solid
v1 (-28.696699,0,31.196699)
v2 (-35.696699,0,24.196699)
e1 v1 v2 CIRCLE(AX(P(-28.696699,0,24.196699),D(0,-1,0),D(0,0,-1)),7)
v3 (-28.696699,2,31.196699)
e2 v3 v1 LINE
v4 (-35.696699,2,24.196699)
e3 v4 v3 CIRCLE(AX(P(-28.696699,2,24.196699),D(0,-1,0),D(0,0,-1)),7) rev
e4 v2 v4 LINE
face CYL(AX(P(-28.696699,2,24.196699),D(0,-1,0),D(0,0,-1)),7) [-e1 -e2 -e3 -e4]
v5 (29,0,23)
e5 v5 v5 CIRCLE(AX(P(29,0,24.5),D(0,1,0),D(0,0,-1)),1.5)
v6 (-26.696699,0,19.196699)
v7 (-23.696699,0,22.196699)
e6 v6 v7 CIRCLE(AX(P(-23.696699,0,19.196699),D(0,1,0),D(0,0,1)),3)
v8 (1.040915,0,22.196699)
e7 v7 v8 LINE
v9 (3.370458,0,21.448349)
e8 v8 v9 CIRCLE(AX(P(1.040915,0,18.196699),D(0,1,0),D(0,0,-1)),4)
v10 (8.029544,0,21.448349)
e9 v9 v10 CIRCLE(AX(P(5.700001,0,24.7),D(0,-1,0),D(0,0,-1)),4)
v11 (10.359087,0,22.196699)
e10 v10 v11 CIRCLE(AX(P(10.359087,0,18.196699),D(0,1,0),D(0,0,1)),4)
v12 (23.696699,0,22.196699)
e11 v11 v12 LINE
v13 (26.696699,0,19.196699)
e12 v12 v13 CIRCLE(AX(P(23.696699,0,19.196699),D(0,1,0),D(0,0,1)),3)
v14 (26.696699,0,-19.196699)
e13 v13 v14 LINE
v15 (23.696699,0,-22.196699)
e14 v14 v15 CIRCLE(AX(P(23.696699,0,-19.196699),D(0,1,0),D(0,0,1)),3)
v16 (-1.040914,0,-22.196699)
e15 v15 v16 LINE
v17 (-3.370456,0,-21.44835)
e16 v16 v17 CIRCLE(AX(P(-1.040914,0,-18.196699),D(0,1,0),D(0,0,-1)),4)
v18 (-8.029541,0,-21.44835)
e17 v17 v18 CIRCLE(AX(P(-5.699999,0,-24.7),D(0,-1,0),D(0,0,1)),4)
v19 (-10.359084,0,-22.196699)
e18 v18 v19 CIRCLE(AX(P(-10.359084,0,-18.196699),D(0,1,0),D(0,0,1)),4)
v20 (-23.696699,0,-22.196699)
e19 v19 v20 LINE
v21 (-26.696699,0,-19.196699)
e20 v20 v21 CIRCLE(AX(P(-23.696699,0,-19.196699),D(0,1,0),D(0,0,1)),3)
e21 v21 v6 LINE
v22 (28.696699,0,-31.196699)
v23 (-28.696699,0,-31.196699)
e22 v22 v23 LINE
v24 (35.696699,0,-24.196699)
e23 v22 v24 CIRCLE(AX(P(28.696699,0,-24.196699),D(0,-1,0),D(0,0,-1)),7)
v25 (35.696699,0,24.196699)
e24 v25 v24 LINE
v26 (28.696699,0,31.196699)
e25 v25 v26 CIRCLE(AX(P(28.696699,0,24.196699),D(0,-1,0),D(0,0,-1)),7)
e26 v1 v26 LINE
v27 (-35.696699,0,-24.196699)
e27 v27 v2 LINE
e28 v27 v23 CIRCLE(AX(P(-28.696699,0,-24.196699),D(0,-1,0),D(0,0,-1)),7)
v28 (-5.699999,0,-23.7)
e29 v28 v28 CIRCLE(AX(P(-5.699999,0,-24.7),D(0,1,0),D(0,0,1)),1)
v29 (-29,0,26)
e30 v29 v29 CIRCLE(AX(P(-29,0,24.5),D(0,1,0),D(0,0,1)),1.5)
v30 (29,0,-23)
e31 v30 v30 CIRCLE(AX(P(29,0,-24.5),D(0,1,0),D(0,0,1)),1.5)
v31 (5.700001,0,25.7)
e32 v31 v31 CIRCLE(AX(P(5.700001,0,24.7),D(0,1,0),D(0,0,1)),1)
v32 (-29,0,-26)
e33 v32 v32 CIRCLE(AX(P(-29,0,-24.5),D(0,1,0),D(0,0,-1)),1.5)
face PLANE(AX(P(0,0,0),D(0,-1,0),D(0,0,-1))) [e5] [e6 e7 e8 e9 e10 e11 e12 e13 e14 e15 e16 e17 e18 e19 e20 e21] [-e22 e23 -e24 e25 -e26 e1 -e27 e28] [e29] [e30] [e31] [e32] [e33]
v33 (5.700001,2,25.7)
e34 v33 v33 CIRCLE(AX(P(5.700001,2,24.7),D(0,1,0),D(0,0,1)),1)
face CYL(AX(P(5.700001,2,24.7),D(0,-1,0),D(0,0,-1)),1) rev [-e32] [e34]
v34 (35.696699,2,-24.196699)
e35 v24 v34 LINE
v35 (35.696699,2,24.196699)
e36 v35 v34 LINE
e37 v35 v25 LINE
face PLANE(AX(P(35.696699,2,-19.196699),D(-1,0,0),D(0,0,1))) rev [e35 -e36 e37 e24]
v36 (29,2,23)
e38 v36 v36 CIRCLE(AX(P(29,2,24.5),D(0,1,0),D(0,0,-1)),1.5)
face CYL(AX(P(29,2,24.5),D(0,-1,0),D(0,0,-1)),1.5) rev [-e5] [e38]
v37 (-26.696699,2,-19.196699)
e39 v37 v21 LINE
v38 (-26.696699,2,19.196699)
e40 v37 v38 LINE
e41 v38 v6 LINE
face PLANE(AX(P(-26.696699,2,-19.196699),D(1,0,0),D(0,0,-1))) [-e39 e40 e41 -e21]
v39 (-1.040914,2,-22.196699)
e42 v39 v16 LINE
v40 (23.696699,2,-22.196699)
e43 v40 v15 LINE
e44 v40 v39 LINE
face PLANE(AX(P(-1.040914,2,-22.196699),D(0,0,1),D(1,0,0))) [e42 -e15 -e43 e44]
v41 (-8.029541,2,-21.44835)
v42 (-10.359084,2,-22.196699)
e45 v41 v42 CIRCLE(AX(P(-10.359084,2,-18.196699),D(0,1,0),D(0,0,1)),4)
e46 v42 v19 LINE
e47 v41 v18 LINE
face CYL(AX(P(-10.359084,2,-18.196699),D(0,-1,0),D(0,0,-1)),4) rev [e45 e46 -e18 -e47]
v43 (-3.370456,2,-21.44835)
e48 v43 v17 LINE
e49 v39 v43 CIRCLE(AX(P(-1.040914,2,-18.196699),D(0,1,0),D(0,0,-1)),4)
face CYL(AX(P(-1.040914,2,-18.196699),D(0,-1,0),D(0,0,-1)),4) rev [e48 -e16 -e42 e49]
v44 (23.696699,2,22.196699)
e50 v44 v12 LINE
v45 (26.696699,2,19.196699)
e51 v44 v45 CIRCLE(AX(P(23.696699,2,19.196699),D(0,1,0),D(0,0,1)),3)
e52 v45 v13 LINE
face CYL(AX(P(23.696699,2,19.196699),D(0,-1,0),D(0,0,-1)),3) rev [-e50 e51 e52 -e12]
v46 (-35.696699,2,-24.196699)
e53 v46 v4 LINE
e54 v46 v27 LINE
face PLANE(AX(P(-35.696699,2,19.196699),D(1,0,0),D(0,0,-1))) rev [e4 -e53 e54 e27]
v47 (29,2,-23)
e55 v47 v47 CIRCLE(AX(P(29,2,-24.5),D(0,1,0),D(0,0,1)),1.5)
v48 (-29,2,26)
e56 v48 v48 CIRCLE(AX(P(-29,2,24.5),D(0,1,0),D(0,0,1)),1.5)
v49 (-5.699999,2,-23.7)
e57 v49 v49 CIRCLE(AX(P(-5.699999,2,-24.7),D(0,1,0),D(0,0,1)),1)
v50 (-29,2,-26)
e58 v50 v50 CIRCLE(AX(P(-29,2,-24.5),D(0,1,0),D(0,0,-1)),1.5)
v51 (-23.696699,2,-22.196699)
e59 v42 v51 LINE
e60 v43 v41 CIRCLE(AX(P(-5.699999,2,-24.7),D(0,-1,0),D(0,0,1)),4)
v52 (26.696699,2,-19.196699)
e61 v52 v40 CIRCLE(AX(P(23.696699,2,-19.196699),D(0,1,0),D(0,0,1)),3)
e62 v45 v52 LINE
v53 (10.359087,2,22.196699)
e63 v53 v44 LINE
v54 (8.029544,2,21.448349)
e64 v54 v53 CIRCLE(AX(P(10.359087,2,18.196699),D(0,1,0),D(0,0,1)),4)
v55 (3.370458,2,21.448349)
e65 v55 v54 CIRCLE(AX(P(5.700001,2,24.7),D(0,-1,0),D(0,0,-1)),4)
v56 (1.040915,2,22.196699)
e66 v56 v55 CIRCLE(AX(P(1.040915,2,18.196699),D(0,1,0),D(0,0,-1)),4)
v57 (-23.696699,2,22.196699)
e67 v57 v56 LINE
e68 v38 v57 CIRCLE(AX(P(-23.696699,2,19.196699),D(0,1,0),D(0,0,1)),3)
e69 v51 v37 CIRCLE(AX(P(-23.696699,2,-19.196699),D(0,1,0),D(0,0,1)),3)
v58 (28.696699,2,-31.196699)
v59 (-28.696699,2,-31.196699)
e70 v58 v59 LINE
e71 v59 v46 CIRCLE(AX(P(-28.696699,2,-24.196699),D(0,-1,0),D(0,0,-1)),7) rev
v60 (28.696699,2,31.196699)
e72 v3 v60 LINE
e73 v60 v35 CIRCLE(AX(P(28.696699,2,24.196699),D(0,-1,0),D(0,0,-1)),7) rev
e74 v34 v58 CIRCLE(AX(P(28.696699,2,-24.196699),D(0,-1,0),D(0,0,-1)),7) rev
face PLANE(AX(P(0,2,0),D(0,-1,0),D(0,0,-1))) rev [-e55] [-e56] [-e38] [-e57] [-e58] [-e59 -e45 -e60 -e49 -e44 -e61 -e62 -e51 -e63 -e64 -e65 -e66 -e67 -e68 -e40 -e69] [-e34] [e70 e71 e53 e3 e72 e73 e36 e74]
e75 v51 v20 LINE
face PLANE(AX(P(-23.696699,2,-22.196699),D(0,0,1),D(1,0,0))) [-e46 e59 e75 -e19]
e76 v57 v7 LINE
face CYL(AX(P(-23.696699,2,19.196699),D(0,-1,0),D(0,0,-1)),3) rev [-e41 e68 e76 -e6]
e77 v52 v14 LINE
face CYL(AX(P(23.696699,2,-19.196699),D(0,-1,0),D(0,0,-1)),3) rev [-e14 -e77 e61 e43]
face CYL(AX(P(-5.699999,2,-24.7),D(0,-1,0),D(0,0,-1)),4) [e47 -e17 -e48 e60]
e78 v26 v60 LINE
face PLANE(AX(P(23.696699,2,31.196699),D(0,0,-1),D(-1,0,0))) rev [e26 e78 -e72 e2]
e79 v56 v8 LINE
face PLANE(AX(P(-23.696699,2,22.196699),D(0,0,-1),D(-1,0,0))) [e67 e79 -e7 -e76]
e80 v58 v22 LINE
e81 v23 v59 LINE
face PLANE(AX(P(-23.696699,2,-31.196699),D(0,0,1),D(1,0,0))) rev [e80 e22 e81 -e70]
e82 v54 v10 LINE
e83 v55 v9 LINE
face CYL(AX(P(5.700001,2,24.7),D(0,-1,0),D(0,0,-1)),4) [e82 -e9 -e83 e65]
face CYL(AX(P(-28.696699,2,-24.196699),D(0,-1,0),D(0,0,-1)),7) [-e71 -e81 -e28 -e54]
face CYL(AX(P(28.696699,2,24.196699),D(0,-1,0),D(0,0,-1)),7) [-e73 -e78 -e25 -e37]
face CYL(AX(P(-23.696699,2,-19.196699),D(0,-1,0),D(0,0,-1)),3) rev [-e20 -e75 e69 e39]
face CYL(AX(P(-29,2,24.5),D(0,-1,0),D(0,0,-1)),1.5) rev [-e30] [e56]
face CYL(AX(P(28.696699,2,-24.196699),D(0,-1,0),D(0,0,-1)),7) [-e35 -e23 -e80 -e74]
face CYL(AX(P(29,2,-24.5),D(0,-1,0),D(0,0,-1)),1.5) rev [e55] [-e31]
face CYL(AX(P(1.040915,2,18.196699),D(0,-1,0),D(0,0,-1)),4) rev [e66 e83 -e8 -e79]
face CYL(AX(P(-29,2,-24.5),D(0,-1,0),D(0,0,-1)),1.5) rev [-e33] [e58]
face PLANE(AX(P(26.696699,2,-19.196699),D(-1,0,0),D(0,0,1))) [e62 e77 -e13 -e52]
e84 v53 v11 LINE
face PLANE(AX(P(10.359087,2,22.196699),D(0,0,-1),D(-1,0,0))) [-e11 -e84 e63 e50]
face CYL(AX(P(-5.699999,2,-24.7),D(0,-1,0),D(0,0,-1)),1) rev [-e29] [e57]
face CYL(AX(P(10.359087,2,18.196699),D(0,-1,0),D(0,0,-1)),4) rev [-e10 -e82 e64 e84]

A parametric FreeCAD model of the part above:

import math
import FreeCAD as App
import Part
import Sketcher

V = App.Vector
Q = App.Units.Quantity


def edges_at(feature, points):
    """Names of the edges that pass closest to the given points."""
    edges = feature.Shape.Edges
    near = lambda p: min(range(len(edges)), key=lambda i: edges[i].distToShape(Part.Vertex(*p))[0])
    return sorted({f"Edge{near(p) + 1}" for p in points})

doc = App.newDocument("Part")
body = doc.addObject("PartDesign::Body", "Body")

# Sketch on XZ plane
sketch1 = body.newObject("Sketcher::SketchObject", "Sketch")
sketch1.AttachmentSupport = (doc.getObject("XZ_Plane"), [""])
sketch1.MapMode = "FlatFace"
sketch1.addGeometry([
    Part.LineSegment(V(35.7, -31.2, 0), V(-35.7, -31.2, 0)),  # 0
    Part.LineSegment(V(-35.7, -31.2, 0), V(-35.7, 31.2, 0)),  # 1
    Part.LineSegment(V(-35.7, 31.2, 0), V(35.7, 31.2, 0)),  # 2
    Part.LineSegment(V(35.7, 31.2, 0), V(35.7, -31.2, 0)),  # 3
    Part.Circle(V(-29, -24.5, 0), V(0, 0, 1), 1.5),  # 4
    Part.Circle(V(-5.7, -24.7, 0), V(0, 0, 1), 1),  # 5
    Part.Circle(V(29, -24.5, 0), V(0, 0, 1), 1.5),  # 6
    Part.Circle(V(-29, 24.5, 0), V(0, 0, 1), 1.5),  # 7
    Part.LineSegment(V(-23.7, -22.2, 0), V(-10.4, -22.2, 0)),  # 8
    Part.ArcOfCircle(Part.Circle(V(-10.4, -18.2, 0), V(0, 0, 1), 4), math.radians(-90), math.radians(-54)),  # 9
    Part.ArcOfCircle(Part.Circle(V(-5.7, -24.7, 0), V(0, 0, 1), 4), math.radians(54), math.radians(126)),  # 10
    Part.ArcOfCircle(Part.Circle(V(-1, -18.2, 0), V(0, 0, 1), 4), math.radians(-126), math.radians(-90)),  # 11
    Part.LineSegment(V(-1, -22.2, 0), V(23.7, -22.2, 0)),  # 12
    Part.ArcOfCircle(Part.Circle(V(23.7, -19.2, 0), V(0, 0, 1), 3), math.radians(-90), math.radians(0)),  # 13
    Part.LineSegment(V(26.7, -19.2, 0), V(26.7, 19.2, 0)),  # 14
    Part.ArcOfCircle(Part.Circle(V(23.7, 19.2, 0), V(0, 0, 1), 3), math.radians(0), math.radians(90)),  # 15
    Part.LineSegment(V(23.7, 22.2, 0), V(10.4, 22.2, 0)),  # 16
    Part.ArcOfCircle(Part.Circle(V(10.4, 18.2, 0), V(0, 0, 1), 4), math.radians(90), math.radians(126)),  # 17
    Part.ArcOfCircle(Part.Circle(V(5.7, 24.7, 0), V(0, 0, 1), 4), math.radians(-126), math.radians(-54)),  # 18
    Part.ArcOfCircle(Part.Circle(V(1, 18.2, 0), V(0, 0, 1), 4), math.radians(54), math.radians(90)),  # 19
    Part.LineSegment(V(1, 22.2, 0), V(-23.7, 22.2, 0)),  # 20
    Part.ArcOfCircle(Part.Circle(V(-23.7, 19.2, 0), V(0, 0, 1), 3), math.radians(90), math.radians(180)),  # 21
    Part.LineSegment(V(-26.7, 19.2, 0), V(-26.7, -19.2, 0)),  # 22
    Part.ArcOfCircle(Part.Circle(V(-23.7, -19.2, 0), V(0, 0, 1), 3), math.radians(180), math.radians(270)),  # 23
    Part.Circle(V(5.7, 24.7, 0), V(0, 0, 1), 1),  # 24
    Part.Circle(V(29, 24.5, 0), V(0, 0, 1), 1.5),  # 25
], False)
sketch1.addConstraint([
    Sketcher.Constraint("Coincident", 0, 2, 1, 1),
    Sketcher.Constraint("Coincident", 1, 2, 2, 1),
    Sketcher.Constraint("Coincident", 2, 2, 3, 1),
    Sketcher.Constraint("Coincident", 3, 2, 0, 1),
    Sketcher.Constraint("Tangent", 8, 2, 9, 1),
    Sketcher.Constraint("Tangent", 9, 2, 10, 2),
    Sketcher.Constraint("Tangent", 10, 1, 11, 1),
    Sketcher.Constraint("Tangent", 11, 2, 12, 1),
    Sketcher.Constraint("Tangent", 12, 2, 13, 1),
    Sketcher.Constraint("Tangent", 13, 2, 14, 1),
    Sketcher.Constraint("Tangent", 14, 2, 15, 1),
    Sketcher.Constraint("Tangent", 15, 2, 16, 1),
    Sketcher.Constraint("Tangent", 16, 2, 17, 1),
    Sketcher.Constraint("Tangent", 17, 2, 18, 2),
    Sketcher.Constraint("Tangent", 18, 1, 19, 1),
    Sketcher.Constraint("Tangent", 19, 2, 20, 1),
    Sketcher.Constraint("Tangent", 20, 2, 21, 1),
    Sketcher.Constraint("Tangent", 21, 2, 22, 1),
    Sketcher.Constraint("Tangent", 22, 2, 23, 1),
    Sketcher.Constraint("Tangent", 23, 2, 8, 1),
    Sketcher.Constraint("Horizontal", 0),
    Sketcher.Constraint("Vertical", 1),
    Sketcher.Constraint("Horizontal", 2),
    Sketcher.Constraint("Vertical", 3),
    Sketcher.Constraint("Horizontal", 8),
    Sketcher.Constraint("Horizontal", 12),
    Sketcher.Constraint("Vertical", 14),
    Sketcher.Constraint("Horizontal", 16),
    Sketcher.Constraint("Horizontal", 20),
    Sketcher.Constraint("Vertical", 22),
    Sketcher.Constraint("Coincident", 10, 3, 5, 3),
    Sketcher.Constraint("Coincident", 24, 3, 18, 3),
    Sketcher.Constraint("Equal", 4, 6),
    Sketcher.Constraint("Equal", 6, 7),
    Sketcher.Constraint("Equal", 9, 10),
    Sketcher.Constraint("Equal", 10, 11),
    Sketcher.Constraint("Equal", 13, 15),
    Sketcher.Constraint("Equal", 11, 17),
    Sketcher.Constraint("Equal", 17, 18),
    Sketcher.Constraint("Equal", 18, 19),
    Sketcher.Constraint("Equal", 15, 21),
    Sketcher.Constraint("Equal", 21, 23),
    Sketcher.Constraint("Equal", 5, 24),
    Sketcher.Constraint("Equal", 7, 25),
    Sketcher.Constraint("Symmetric", 6, 3, 7, 3, -1, 1),
    Sketcher.Constraint("Symmetric", 9, 3, 17, 3, -1, 1),
    Sketcher.Constraint("Symmetric", 11, 3, 19, 3, -1, 1),
    Sketcher.Constraint("Symmetric", 4, 3, 25, 3, -1, 1),
    Sketcher.Constraint("Symmetric", 0, 2, 2, 2, -1, 1),
    Sketcher.Constraint("Symmetric", 4, 3, 6, 3, -2),
    Sketcher.Constraint("Symmetric", 15, 3, 21, 3, -2),
    Sketcher.Constraint("Diameter", 4, Q("3 mm")),
    Sketcher.Constraint("Diameter", 5, Q("2 mm")),
    Sketcher.Constraint("Radius", 9, Q("4 mm")),
    Sketcher.Constraint("Radius", 13, Q("3 mm")),
    Sketcher.Constraint("DistanceX", 4, 3, -1, 1, Q("29 mm")),
    Sketcher.Constraint("DistanceY", 4, 3, 7, 3, Q("49 mm")),
    Sketcher.Constraint("DistanceX", 0, 2, 23, 3, Q("12 mm")),
    Sketcher.Constraint("DistanceY", 0, 2, 23, 3, Q("12 mm")),
    Sketcher.Constraint("DistanceX", 5, 3, -1, 1, Q("5.699999 mm")),
    Sketcher.Constraint("DistanceY", 5, 3, -1, 1, Q("24.7 mm")),
    Sketcher.Constraint("DistanceX", 0, 2, 0, 1, Q("71.393398 mm")),
    Sketcher.Constraint("DistanceY", 1, 1, 1, 2, Q("62.393398 mm")),
])
pad1 = body.newObject("PartDesign::Pad", "Pad")
pad1.Profile = sketch1
pad1.Length = 2
pad1.Reversed = True
doc.recompute()

fillet = body.newObject("PartDesign::Fillet", "Fillet")
fillet.Base = (pad1, edges_at(pad1, [
    (35.697, 1, -31.197),
    (35.697, 1, 31.197),
    (-35.697, 1, 31.197),
    (-35.697, 1, -31.197),
]))
fillet.Radius = 7

doc.recompute()
